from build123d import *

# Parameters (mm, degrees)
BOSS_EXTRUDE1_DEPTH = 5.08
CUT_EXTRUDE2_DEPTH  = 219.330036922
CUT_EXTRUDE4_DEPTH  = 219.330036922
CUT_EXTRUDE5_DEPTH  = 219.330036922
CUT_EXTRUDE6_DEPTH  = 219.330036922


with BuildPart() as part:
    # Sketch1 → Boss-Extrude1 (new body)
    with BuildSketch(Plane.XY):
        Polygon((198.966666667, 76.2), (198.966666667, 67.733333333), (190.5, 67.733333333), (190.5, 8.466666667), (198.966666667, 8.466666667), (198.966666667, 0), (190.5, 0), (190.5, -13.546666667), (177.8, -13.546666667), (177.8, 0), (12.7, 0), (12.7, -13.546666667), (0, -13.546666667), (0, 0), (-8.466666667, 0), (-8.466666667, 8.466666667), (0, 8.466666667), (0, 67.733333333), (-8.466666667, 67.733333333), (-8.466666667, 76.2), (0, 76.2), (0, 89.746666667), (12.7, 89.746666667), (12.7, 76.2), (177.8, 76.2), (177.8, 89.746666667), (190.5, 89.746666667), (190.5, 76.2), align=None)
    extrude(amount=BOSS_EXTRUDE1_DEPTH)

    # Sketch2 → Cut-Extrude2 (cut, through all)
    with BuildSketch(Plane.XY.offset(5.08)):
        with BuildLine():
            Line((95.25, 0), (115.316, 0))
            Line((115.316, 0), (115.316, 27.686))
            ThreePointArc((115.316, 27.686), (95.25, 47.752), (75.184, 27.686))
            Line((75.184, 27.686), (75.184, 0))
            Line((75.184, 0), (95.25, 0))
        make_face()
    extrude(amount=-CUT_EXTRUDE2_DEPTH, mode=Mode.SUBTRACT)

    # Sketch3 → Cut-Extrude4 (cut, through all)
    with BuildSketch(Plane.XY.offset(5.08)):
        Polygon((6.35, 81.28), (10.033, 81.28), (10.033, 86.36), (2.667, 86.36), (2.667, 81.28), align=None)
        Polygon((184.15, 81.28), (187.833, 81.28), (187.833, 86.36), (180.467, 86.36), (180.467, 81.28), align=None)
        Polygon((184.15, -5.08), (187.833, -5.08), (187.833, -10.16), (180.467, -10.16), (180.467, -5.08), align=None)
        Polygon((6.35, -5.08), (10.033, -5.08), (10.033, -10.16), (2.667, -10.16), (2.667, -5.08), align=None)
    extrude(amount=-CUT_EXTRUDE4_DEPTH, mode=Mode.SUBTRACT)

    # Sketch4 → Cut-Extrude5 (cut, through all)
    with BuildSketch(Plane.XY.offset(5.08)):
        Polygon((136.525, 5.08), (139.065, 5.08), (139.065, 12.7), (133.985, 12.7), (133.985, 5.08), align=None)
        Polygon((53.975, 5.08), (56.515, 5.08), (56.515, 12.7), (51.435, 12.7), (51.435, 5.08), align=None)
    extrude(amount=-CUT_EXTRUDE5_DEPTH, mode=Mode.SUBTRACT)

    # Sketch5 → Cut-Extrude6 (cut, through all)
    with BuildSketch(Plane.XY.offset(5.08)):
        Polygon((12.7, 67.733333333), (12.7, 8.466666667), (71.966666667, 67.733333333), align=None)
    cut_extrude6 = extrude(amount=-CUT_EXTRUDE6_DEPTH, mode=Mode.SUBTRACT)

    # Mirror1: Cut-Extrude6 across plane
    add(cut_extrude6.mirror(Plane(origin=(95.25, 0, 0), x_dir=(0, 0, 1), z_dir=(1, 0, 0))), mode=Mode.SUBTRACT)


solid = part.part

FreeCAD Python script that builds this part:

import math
import FreeCAD as App
import Part
import Sketcher

V = App.Vector
Q = App.Units.Quantity


def add_polygon(sketch, points):
    """Adds a closed chain of lines whose ends are joined by coincident constraints."""
    first, n = sketch.GeometryCount, len(points)
    for a, b in zip(points, points[1:] + points[:1]):
        sketch.addGeometry(Part.LineSegment(App.Vector(*a, 0), App.Vector(*b, 0)), False)
    for i in range(n):
        sketch.addConstraint(Sketcher.Constraint("Coincident", first + i, 2, first + (i + 1) % n, 1))

doc = App.newDocument("Part")
body = doc.addObject("PartDesign::Body", "Body")

sketch1 = body.newObject("Sketcher::SketchObject", "Sketch")
sketch1.AttachmentSupport = (doc.getObject("XY_Plane"), [""])
sketch1.MapMode = "FlatFace"
add_polygon(sketch1, [(198.966667, 67.733333), (198.966667, 76.2), (190.5, 76.2), (190.5, 89.746667), (177.8, 89.746667), (177.8, 76.2), (12.7, 76.2), (12.7, 89.746667), (0, 89.746667), (0, 76.2), (-8.466667, 76.2), (-8.466667, 67.733333), (0, 67.733333), (0, 8.466667), (-8.466667, 8.466667), (-8.466667, 0), (0, 0), (0, -13.546667), (12.7, -13.546667), (12.7, 0), (177.8, 0), (177.8, -13.546667), (190.5, -13.546667), (190.5, 0), (198.966667, 0), (198.966667, 8.466667), (190.5, 8.466667), (190.5, 67.733333)])
sketch1.addConstraint(Sketcher.Constraint("Vertical", 0))
sketch1.addConstraint(Sketcher.Constraint("Horizontal", 1))
sketch1.addConstraint(Sketcher.Constraint("Vertical", 2))
sketch1.addConstraint(Sketcher.Constraint("Horizontal", 3))
sketch1.addConstraint(Sketcher.Constraint("Vertical", 4))
sketch1.addConstraint(Sketcher.Constraint("Horizontal", 5))
sketch1.addConstraint(Sketcher.Constraint("Vertical", 6))
sketch1.addConstraint(Sketcher.Constraint("Horizontal", 7))
sketch1.addConstraint(Sketcher.Constraint("Vertical", 8))
sketch1.addConstraint(Sketcher.Constraint("Horizontal", 9))
sketch1.addConstraint(Sketcher.Constraint("Vertical", 10))
sketch1.addConstraint(Sketcher.Constraint("Horizontal", 11))
sketch1.addConstraint(Sketcher.Constraint("Vertical", 12))
sketch1.addConstraint(Sketcher.Constraint("Horizontal", 13))
sketch1.addConstraint(Sketcher.Constraint("Vertical", 14))
sketch1.addConstraint(Sketcher.Constraint("Horizontal", 15))
sketch1.addConstraint(Sketcher.Constraint("Vertical", 16))
sketch1.addConstraint(Sketcher.Constraint("Horizontal", 17))
sketch1.addConstraint(Sketcher.Constraint("Vertical", 18))
sketch1.addConstraint(Sketcher.Constraint("Horizontal", 19))
sketch1.addConstraint(Sketcher.Constraint("Vertical", 20))
sketch1.addConstraint(Sketcher.Constraint("Horizontal", 21))
sketch1.addConstraint(Sketcher.Constraint("Vertical", 22))
sketch1.addConstraint(Sketcher.Constraint("Horizontal", 23))
sketch1.addConstraint(Sketcher.Constraint("Vertical", 24))
sketch1.addConstraint(Sketcher.Constraint("Horizontal", 25))
sketch1.addConstraint(Sketcher.Constraint("Vertical", 26))
sketch1.addConstraint(Sketcher.Constraint("Horizontal", 27))
sketch1.addConstraint(Sketcher.Constraint("Coincident", 15, 2, -1, 1))
sketch1.addConstraint(Sketcher.Constraint("PointOnObject", 7, 2, -2))
sketch1.addConstraint(Sketcher.Constraint("PointOnObject", 11, 2, -2))
sketch1.addConstraint(Sketcher.Constraint("PointOnObject", 18, 2, -1))
sketch1.addConstraint(Sketcher.Constraint("PointOnObject", 22, 2, -1))
sketch1.addConstraint(Sketcher.Constraint("Horizontal", 1, 2, 4, 2))
sketch1.addConstraint(Sketcher.Constraint("Horizontal", 3, 2, 6, 2))
sketch1.addConstraint(Sketcher.Constraint("Horizontal", 5, 2, 8, 2))
sketch1.addConstraint(Sketcher.Constraint("Horizontal", 17, 2, 20, 2))
sketch1.addConstraint(Sketcher.Constraint("Horizontal", 13, 2, 24, 2))
sketch1.addConstraint(Sketcher.Constraint("Horizontal", 11, 2, 26, 2))
sketch1.addConstraint(Sketcher.Constraint("Vertical", 10, 2, 13, 2))
sketch1.addConstraint(Sketcher.Constraint("Vertical", 6, 2, 17, 2))
sketch1.addConstraint(Sketcher.Constraint("Vertical", 4, 2, 19, 2))
sketch1.addConstraint(Sketcher.Constraint("Vertical", 2, 2, 21, 2))
sketch1.addConstraint(Sketcher.Constraint("Vertical", 0, 2, 23, 2))
sketch1.addConstraint(Sketcher.Constraint("Vertical", 22, 2, 25, 2))
sketch1.addConstraint(Sketcher.Constraint("Equal", 3, 7))
sketch1.addConstraint(Sketcher.Constraint("Equal", 1, 9))
sketch1.addConstraint(Sketcher.Constraint("Equal", 27, 0))
sketch1.addConstraint(Sketcher.Constraint("Equal", 10, 14))
sketch1.addConstraint(Sketcher.Constraint("Equal", 8, 16))
sketch1.addConstraint(Sketcher.Constraint("DistanceX", 3, 2, 3, 1, Q("0.5 in")))
sketch1.addConstraint(Sketcher.Constraint("DistanceX", 5, 2, 5, 1, Q("6.5 in")))
sketch1.addConstraint(Sketcher.Constraint("DistanceY", -1, 1, 0, 2, Q("3 in")))
sketch1.addConstraint(Sketcher.Constraint("DistanceY", 16, 2, 11, 2, Q("3.2 in")))
sketch1.addConstraint(Sketcher.Constraint("DistanceX", 1, 2, 1, 1, Q("8.466667 mm")))
pad1 = body.newObject("PartDesign::Pad", "Pad")
pad1.Profile = sketch1
pad1.Length = Q("0.2 in")

sketch2 = body.newObject("Sketcher::SketchObject", "Sketch001")
sketch2.AttachmentSupport = (doc.getObject("XY_Plane"), [""])
sketch2.MapMode = "FlatFace"
sketch2.AttachmentOffset = App.Placement(V(0, 0, 0.2 * 25.4), App.Rotation())
sketch2.addGeometry(Part.LineSegment(V(115.316, 0, 0), V(115.316, 27.686, 0)), False)
sketch2.addGeometry(Part.ArcOfCircle(Part.Circle(V(95.25, 27.686, 0), V(0, 0, 1), 20.066), math.radians(0), math.radians(180)), False)
sketch2.addGeometry(Part.LineSegment(V(75.184, 27.686, 0), V(75.184, 0, 0)), False)
sketch2.addGeometry(Part.LineSegment(V(75.184, 0, 0), V(115.316, 0, 0)), False)
sketch2.addConstraint(Sketcher.Constraint("Tangent", 0, 2, 1, 1))
sketch2.addConstraint(Sketcher.Constraint("Tangent", 1, 2, 2, 1))
sketch2.addConstraint(Sketcher.Constraint("Coincident", 2, 2, 3, 1))
sketch2.addConstraint(Sketcher.Constraint("Coincident", 3, 2, 0, 1))
sketch2.addConstraint(Sketcher.Constraint("Vertical", 0))
sketch2.addConstraint(Sketcher.Constraint("Vertical", 2))
sketch2.addConstraint(Sketcher.Constraint("Horizontal", 3))
sketch2.addConstraint(Sketcher.Constraint("PointOnObject", 2, 2, -1))
sketch2.addConstraint(Sketcher.Constraint("Radius", 1, Q("0.79 in")))
sketch2.addConstraint(Sketcher.Constraint("DistanceY", 0, 1, 0, 2, Q("1.09 in")))
sketch2.addConstraint(Sketcher.Constraint("DistanceX", -1, 1, 1, 3, Q("3.75 in")))
pocket1 = body.newObject("PartDesign::Pocket", "Pocket")
pocket1.Profile = sketch2
pocket1.Type = "ThroughAll"

sketch3 = body.newObject("Sketcher::SketchObject", "Sketch002")
sketch3.AttachmentSupport = (doc.getObject("XY_Plane"), [""])
sketch3.MapMode = "FlatFace"
sketch3.AttachmentOffset = App.Placement(V(0, 0, 0.2 * 25.4), App.Rotation())
add_polygon(sketch3, [(10.033, 81.28), (10.033, 86.36), (2.667, 86.36), (2.667, 81.28)])
add_polygon(sketch3, [(187.833, 81.28), (187.833, 86.36), (180.467, 86.36), (180.467, 81.28)])
add_polygon(sketch3, [(187.833, -5.08), (180.467, -5.08), (180.467, -10.16), (187.833, -10.16)])
add_polygon(sketch3, [(10.033, -5.08), (2.667, -5.08), (2.667, -10.16), (10.033, -10.16)])
sketch3.addConstraint(Sketcher.Constraint("Vertical", 0))
sketch3.addConstraint(Sketcher.Constraint("Horizontal", 1))
sketch3.addConstraint(Sketcher.Constraint("Vertical", 2))
sketch3.addConstraint(Sketcher.Constraint("Horizontal", 3))
sketch3.addConstraint(Sketcher.Constraint("Vertical", 4))
sketch3.addConstraint(Sketcher.Constraint("Horizontal", 5))
sketch3.addConstraint(Sketcher.Constraint("Vertical", 6))
sketch3.addConstraint(Sketcher.Constraint("Horizontal", 7))
sketch3.addConstraint(Sketcher.Constraint("Horizontal", 8))
sketch3.addConstraint(Sketcher.Constraint("Vertical", 9))
sketch3.addConstraint(Sketcher.Constraint("Horizontal", 10))
sketch3.addConstraint(Sketcher.Constraint("Vertical", 11))
sketch3.addConstraint(Sketcher.Constraint("Horizontal", 12))
sketch3.addConstraint(Sketcher.Constraint("Vertical", 13))
sketch3.addConstraint(Sketcher.Constraint("Horizontal", 14))
sketch3.addConstraint(Sketcher.Constraint("Vertical", 15))
sketch3.addConstraint(Sketcher.Constraint("Horizontal", 1, 2, 4, 2))
sketch3.addConstraint(Sketcher.Constraint("Horizontal", 3, 2, 6, 2))
sketch3.addConstraint(Sketcher.Constraint("Horizontal", 11, 2, 12, 2))
sketch3.addConstraint(Sketcher.Constraint("Horizontal", 10, 2, 13, 2))
sketch3.addConstraint(Sketcher.Constraint("Vertical", 6, 2, 8, 2))
sketch3.addConstraint(Sketcher.Constraint("Vertical", 7, 2, 10, 2))
sketch3.addConstraint(Sketcher.Constraint("Vertical", 2, 2, 12, 2))
sketch3.addConstraint(Sketcher.Constraint("Vertical", 3, 2, 14, 2))
sketch3.addConstraint(Sketcher.Constraint("Equal", 3, 5))
sketch3.addConstraint(Sketcher.Constraint("Equal", 6, 9))
sketch3.addConstraint(Sketcher.Constraint("DistanceY", 0, 1, 0, 2, Q("0.2 in")))
sketch3.addConstraint(Sketcher.Constraint("DistanceX", 0, 2, 4, 2, Q("7 in")))
sketch3.addConstraint(Sketcher.Constraint("DistanceX", 1, 2, 1, 1, Q("0.29 in")))
sketch3.addConstraint(Sketcher.Constraint("DistanceY", -1, 1, 0, 2, Q("3.4 in")))
sketch3.addConstraint(Sketcher.Constraint("DistanceY", 8, 2, -1, 1, Q("0.2 in")))
sketch3.addConstraint(Sketcher.Constraint("DistanceX", -1, 1, 0, 2, Q("0.395 in")))
pocket2 = body.newObject("PartDesign::Pocket", "Pocket001")
pocket2.Profile = sketch3
pocket2.Type = "ThroughAll"

sketch4 = body.newObject("Sketcher::SketchObject", "Sketch003")
sketch4.AttachmentSupport = (doc.getObject("XY_Plane"), [""])
sketch4.MapMode = "FlatFace"
sketch4.AttachmentOffset = App.Placement(V(0, 0, 0.2 * 25.4), App.Rotation())
add_polygon(sketch4, [(139.065, 5.08), (139.065, 12.7), (133.985, 12.7), (133.985, 5.08)])
add_polygon(sketch4, [(56.515, 5.08), (56.515, 12.7), (51.435, 12.7), (51.435, 5.08)])
sketch4.addConstraint(Sketcher.Constraint("Vertical", 0))
sketch4.addConstraint(Sketcher.Constraint("Horizontal", 1))
sketch4.addConstraint(Sketcher.Constraint("Vertical", 2))
sketch4.addConstraint(Sketcher.Constraint("Horizontal", 3))
sketch4.addConstraint(Sketcher.Constraint("Vertical", 4))
sketch4.addConstraint(Sketcher.Constraint("Horizontal", 5))
sketch4.addConstraint(Sketcher.Constraint("Vertical", 6))
sketch4.addConstraint(Sketcher.Constraint("Horizontal", 7))
sketch4.addConstraint(Sketcher.Constraint("Horizontal", 1, 2, 4, 2))
sketch4.addConstraint(Sketcher.Constraint("Horizontal", 3, 2, 6, 2))
sketch4.addConstraint(Sketcher.Constraint("Equal", 3, 5))
sketch4.addConstraint(Sketcher.Constraint("DistanceX", 1, 2, 1, 1, Q("0.2 in")))
sketch4.addConstraint(Sketcher.Constraint("DistanceY", 0, 1, 0, 2, Q("0.3 in")))
sketch4.addConstraint(Sketcher.Constraint("DistanceY", -1, 1, 0, 2, Q("0.5 in")))
sketch4.addConstraint(Sketcher.Constraint("DistanceX", 4, 2, 1, 2, Q("3.05 in")))
sketch4.addConstraint(Sketcher.Constraint("DistanceX", -1, 1, 0, 2, Q("5.475 in")))
pocket3 = body.newObject("PartDesign::Pocket", "Pocket002")
pocket3.Profile = sketch4
pocket3.Type = "ThroughAll"

sketch5 = body.newObject("Sketcher::SketchObject", "Sketch004")
sketch5.AttachmentSupport = (doc.getObject("XY_Plane"), [""])
sketch5.MapMode = "FlatFace"
sketch5.AttachmentOffset = App.Placement(V(0, 0, 0.2 * 25.4), App.Rotation())
add_polygon(sketch5, [(12.7, 67.733333), (12.7, 8.466667), (71.966667, 67.733333)])
sketch5.addConstraint(Sketcher.Constraint("Vertical", 0))
sketch5.addConstraint(Sketcher.Constraint("Horizontal", 2))
sketch5.addConstraint(Sketcher.Constraint("Equal", 2, 0))
sketch5.addConstraint(Sketcher.Constraint("DistanceX", -1, 1, 0, 2, Q("0.5 in")))
sketch5.addConstraint(Sketcher.Constraint("DistanceX", 2, 2, 2, 1, Q("59.266667 mm")))
sketch5.addConstraint(Sketcher.Constraint("DistanceY", -1, 1, 0, 2, Q("8.466667 mm")))
pocket4 = body.newObject("PartDesign::Pocket", "Pocket003")
pocket4.Profile = sketch5
pocket4.Type = "ThroughAll"
doc.recompute()

datumplane = body.newObject("PartDesign::Plane", "DatumPlane")
datumplane.AttachmentSupport = (doc.getObject("YZ_Plane"), [""])
datumplane.MapMode = "FlatFace"
datumplane.AttachmentOffset = App.Placement(V(0, 0, 3.75 * 25.4), App.Rotation())
mirrored = body.newObject("PartDesign::Mirrored", "Mirrored")
mirrored.Originals = [pocket4]
mirrored.MirrorPlane = (datumplane, [""])
body.Tip = mirrored

doc.recompute()
